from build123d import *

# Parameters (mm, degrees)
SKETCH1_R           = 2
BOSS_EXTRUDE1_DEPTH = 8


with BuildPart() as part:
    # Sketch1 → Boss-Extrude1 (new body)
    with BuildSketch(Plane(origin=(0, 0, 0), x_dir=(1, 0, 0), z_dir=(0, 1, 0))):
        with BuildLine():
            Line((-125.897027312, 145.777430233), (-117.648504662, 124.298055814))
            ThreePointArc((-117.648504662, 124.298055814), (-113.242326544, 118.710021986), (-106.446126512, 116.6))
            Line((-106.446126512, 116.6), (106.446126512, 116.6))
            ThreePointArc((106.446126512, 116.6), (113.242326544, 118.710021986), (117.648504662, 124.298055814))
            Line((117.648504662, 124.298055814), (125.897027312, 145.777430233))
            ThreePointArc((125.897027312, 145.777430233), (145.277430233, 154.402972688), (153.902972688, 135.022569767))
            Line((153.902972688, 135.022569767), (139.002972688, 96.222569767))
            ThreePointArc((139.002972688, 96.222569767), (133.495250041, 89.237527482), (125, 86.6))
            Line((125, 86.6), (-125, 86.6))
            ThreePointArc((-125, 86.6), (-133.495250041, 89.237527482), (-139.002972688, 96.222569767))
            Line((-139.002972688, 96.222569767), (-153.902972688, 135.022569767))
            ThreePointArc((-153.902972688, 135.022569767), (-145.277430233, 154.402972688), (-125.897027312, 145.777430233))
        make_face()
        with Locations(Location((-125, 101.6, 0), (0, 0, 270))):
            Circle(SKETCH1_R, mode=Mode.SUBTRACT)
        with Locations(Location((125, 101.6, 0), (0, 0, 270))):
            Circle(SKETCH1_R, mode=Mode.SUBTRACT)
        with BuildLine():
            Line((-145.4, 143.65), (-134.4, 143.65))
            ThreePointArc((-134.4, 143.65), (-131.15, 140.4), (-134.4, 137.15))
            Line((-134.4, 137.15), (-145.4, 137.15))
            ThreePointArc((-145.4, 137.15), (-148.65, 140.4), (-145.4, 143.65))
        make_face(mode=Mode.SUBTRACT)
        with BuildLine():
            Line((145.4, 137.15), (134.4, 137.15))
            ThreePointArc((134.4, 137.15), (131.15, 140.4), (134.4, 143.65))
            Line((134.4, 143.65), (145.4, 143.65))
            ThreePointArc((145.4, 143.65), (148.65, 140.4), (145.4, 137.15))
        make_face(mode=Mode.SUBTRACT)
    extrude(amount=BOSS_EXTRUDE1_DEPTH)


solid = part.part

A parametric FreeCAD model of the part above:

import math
import FreeCAD as App
import Part
import Sketcher
from FreeCAD import Vector
Q = App.Units.Quantity

doc = App.newDocument("Part")
body = doc.addObject("PartDesign::Body", "Body")

# Sketch on XZ plane
sketch1 = body.newObject("Sketcher::SketchObject", "Sketch")
sketch1.AttachmentSupport = (doc.getObject("XZ_Plane"), [""])
sketch1.MapMode = "FlatFace"
sketch1.addGeometry(Part.LineSegment(Vector(-117.6, -124.3, 0), Vector(-125.9, -145.8, 0)), False)
sketch1.addGeometry(Part.ArcOfCircle(Part.Circle(Vector(-139.9, -140.4, 0), Vector(0, 0, 1), 15), math.radians(159), math.radians(339)), False)
sketch1.addGeometry(Part.LineSegment(Vector(-153.9, -135, 0), Vector(-139, -96.2, 0)), False)
sketch1.addGeometry(Part.ArcOfCircle(Part.Circle(Vector(-125, -101.6, 0), Vector(0, 0, 1), 15), math.radians(90), math.radians(159)), False)
sketch1.addGeometry(Part.LineSegment(Vector(-125, -86.6, 0), Vector(125, -86.6, 0)), False)
sketch1.addGeometry(Part.ArcOfCircle(Part.Circle(Vector(125, -101.6, 0), Vector(0, 0, 1), 15), math.radians(21), math.radians(90)), False)
sketch1.addGeometry(Part.LineSegment(Vector(139, -96.2, 0), Vector(153.9, -135, 0)), False)
sketch1.addGeometry(Part.ArcOfCircle(Part.Circle(Vector(139.9, -140.4, 0), Vector(0, 0, 1), 15), math.radians(-159), math.radians(21)), False)
sketch1.addGeometry(Part.LineSegment(Vector(125.9, -145.8, 0), Vector(117.6, -124.3, 0)), False)
sketch1.addGeometry(Part.ArcOfCircle(Part.Circle(Vector(106.4, -128.6, 0), Vector(0, 0, 1), 12), math.radians(21), math.radians(90)), False)
sketch1.addGeometry(Part.LineSegment(Vector(106.4, -116.6, 0), Vector(-106.4, -116.6, 0)), False)
sketch1.addGeometry(Part.ArcOfCircle(Part.Circle(Vector(-106.4, -128.6, 0), Vector(0, 0, 1), 12), math.radians(90), math.radians(159)), False)
sketch1.addGeometry(Part.Circle(Vector(125, -101.6, 0), Vector(0, 0, 1), 2), False)
sketch1.addGeometry(Part.Circle(Vector(-125, -101.6, 0), Vector(0, 0, 1), 2), False)
sketch1.addGeometry(Part.LineSegment(Vector(145.4, -137.2, 0), Vector(134.4, -137.2, 0)), False)
sketch1.addGeometry(Part.ArcOfCircle(Part.Circle(Vector(134.4, -140.4, 0), Vector(0, 0, 1), 3.2), math.radians(90), math.radians(270)), False)
sketch1.addGeometry(Part.LineSegment(Vector(134.4, -143.7, 0), Vector(145.4, -143.7, 0)), False)
sketch1.addGeometry(Part.ArcOfCircle(Part.Circle(Vector(145.4, -140.4, 0), Vector(0, 0, 1), 3.2), math.radians(-90), math.radians(90)), False)
sketch1.addGeometry(Part.LineSegment(Vector(-145.4, -143.7, 0), Vector(-134.4, -143.7, 0)), False)
sketch1.addGeometry(Part.ArcOfCircle(Part.Circle(Vector(-134.4, -140.4, 0), Vector(0, 0, 1), 3.2), math.radians(-90), math.radians(90)), False)
sketch1.addGeometry(Part.LineSegment(Vector(-134.4, -137.2, 0), Vector(-145.4, -137.2, 0)), False)
sketch1.addGeometry(Part.ArcOfCircle(Part.Circle(Vector(-145.4, -140.4, 0), Vector(0, 0, 1), 3.2), math.radians(90), math.radians(270)), False)
sketch1.addConstraint(Sketcher.Constraint("Tangent", 0, 2, 1, 2))
sketch1.addConstraint(Sketcher.Constraint("Tangent", 1, 1, 2, 1))
sketch1.addConstraint(Sketcher.Constraint("Tangent", 2, 2, 3, 2))
sketch1.addConstraint(Sketcher.Constraint("Tangent", 3, 1, 4, 1))
sketch1.addConstraint(Sketcher.Constraint("Tangent", 4, 2, 5, 2))
sketch1.addConstraint(Sketcher.Constraint("Tangent", 5, 1, 6, 1))
sketch1.addConstraint(Sketcher.Constraint("Tangent", 6, 2, 7, 2))
sketch1.addConstraint(Sketcher.Constraint("Tangent", 7, 1, 8, 1))
sketch1.addConstraint(Sketcher.Constraint("Tangent", 8, 2, 9, 1))
sketch1.addConstraint(Sketcher.Constraint("Tangent", 9, 2, 10, 1))
sketch1.addConstraint(Sketcher.Constraint("Tangent", 10, 2, 11, 1))
sketch1.addConstraint(Sketcher.Constraint("Tangent", 11, 2, 0, 1))
sketch1.addConstraint(Sketcher.Constraint("Tangent", 14, 2, 15, 1))
sketch1.addConstraint(Sketcher.Constraint("Tangent", 15, 2, 16, 1))
sketch1.addConstraint(Sketcher.Constraint("Tangent", 16, 2, 17, 1))
sketch1.addConstraint(Sketcher.Constraint("Tangent", 17, 2, 14, 1))
sketch1.addConstraint(Sketcher.Constraint("Tangent", 18, 2, 19, 1))
sketch1.addConstraint(Sketcher.Constraint("Tangent", 19, 2, 20, 1))
sketch1.addConstraint(Sketcher.Constraint("Tangent", 20, 2, 21, 1))
sketch1.addConstraint(Sketcher.Constraint("Tangent", 21, 2, 18, 1))
sketch1.addConstraint(Sketcher.Constraint("Horizontal", 4))
sketch1.addConstraint(Sketcher.Constraint("Horizontal", 10))
sketch1.addConstraint(Sketcher.Constraint("Horizontal", 14))
sketch1.addConstraint(Sketcher.Constraint("Horizontal", 16))
sketch1.addConstraint(Sketcher.Constraint("Horizontal", 18))
sketch1.addConstraint(Sketcher.Constraint("Horizontal", 20))
sketch1.addConstraint(Sketcher.Constraint("Coincident", 12, 3, 5, 3))
sketch1.addConstraint(Sketcher.Constraint("Coincident", 13, 3, 3, 3))
sketch1.addConstraint(Sketcher.Constraint("Equal", 1, 3))
sketch1.addConstraint(Sketcher.Constraint("Equal", 3, 5))
sketch1.addConstraint(Sketcher.Constraint("Equal", 5, 7))
sketch1.addConstraint(Sketcher.Constraint("Equal", 9, 11))
sketch1.addConstraint(Sketcher.Constraint("Equal", 12, 13))
sketch1.addConstraint(Sketcher.Constraint("Equal", 17, 19))
sketch1.addConstraint(Sketcher.Constraint("Symmetric", 1, 3, 7, 3, -2))
sketch1.addConstraint(Sketcher.Constraint("Symmetric", 15, 3, 19, 3, -2))
sketch1.addConstraint(Sketcher.Constraint("Parallel", 0, 2))
sketch1.addConstraint(Sketcher.Constraint("Parallel", 6, 8))
sketch1.addConstraint(Sketcher.Constraint("Horizontal", 7, 3, 15, 3))
sketch1.addConstraint(Sketcher.Constraint("Horizontal", 2, 2, 5, 1))
sketch1.addConstraint(Sketcher.Constraint("Equal", 16, 18))
sketch1.addConstraint(Sketcher.Constraint("Diameter", 12, Q("4 mm")))
sketch1.addConstraint(Sketcher.Constraint("Radius", 1, Q("15 mm")))
sketch1.addConstraint(Sketcher.Constraint("Radius", 9, Q("12 mm")))
sketch1.addConstraint(Sketcher.Constraint("DistanceX", 4, 1, 4, 2, Q("250 mm")))
sketch1.addConstraint(Sketcher.Constraint("DistanceX", 14, 2, 14, 1, Q("11 mm")))
sketch1.addConstraint(Sketcher.Constraint("Radius", 15, Q("3.25 mm")))
sketch1.addConstraint(Sketcher.Constraint("DistanceY", 9, 3, 5, 3, Q("27 mm")))
sketch1.addConstraint(Sketcher.Constraint("DistanceX", 1, 3, -1, 1, Q("139.9 mm")))
sketch1.addConstraint(Sketcher.Constraint("DistanceY", 1, 3, -1, 1, Q("140.4 mm")))
sketch1.addConstraint(Sketcher.Constraint("DistanceY", 3, 3, -1, 1, Q("101.6 mm")))
sketch1.addConstraint(Sketcher.Constraint("DistanceX", -1, 1, 15, 3, Q("134.4 mm")))
pad1 = body.newObject("PartDesign::Pad", "Pad")
pad1.Profile = sketch1
pad1.Length = 8
pad1.Reversed = True

doc.recompute()
